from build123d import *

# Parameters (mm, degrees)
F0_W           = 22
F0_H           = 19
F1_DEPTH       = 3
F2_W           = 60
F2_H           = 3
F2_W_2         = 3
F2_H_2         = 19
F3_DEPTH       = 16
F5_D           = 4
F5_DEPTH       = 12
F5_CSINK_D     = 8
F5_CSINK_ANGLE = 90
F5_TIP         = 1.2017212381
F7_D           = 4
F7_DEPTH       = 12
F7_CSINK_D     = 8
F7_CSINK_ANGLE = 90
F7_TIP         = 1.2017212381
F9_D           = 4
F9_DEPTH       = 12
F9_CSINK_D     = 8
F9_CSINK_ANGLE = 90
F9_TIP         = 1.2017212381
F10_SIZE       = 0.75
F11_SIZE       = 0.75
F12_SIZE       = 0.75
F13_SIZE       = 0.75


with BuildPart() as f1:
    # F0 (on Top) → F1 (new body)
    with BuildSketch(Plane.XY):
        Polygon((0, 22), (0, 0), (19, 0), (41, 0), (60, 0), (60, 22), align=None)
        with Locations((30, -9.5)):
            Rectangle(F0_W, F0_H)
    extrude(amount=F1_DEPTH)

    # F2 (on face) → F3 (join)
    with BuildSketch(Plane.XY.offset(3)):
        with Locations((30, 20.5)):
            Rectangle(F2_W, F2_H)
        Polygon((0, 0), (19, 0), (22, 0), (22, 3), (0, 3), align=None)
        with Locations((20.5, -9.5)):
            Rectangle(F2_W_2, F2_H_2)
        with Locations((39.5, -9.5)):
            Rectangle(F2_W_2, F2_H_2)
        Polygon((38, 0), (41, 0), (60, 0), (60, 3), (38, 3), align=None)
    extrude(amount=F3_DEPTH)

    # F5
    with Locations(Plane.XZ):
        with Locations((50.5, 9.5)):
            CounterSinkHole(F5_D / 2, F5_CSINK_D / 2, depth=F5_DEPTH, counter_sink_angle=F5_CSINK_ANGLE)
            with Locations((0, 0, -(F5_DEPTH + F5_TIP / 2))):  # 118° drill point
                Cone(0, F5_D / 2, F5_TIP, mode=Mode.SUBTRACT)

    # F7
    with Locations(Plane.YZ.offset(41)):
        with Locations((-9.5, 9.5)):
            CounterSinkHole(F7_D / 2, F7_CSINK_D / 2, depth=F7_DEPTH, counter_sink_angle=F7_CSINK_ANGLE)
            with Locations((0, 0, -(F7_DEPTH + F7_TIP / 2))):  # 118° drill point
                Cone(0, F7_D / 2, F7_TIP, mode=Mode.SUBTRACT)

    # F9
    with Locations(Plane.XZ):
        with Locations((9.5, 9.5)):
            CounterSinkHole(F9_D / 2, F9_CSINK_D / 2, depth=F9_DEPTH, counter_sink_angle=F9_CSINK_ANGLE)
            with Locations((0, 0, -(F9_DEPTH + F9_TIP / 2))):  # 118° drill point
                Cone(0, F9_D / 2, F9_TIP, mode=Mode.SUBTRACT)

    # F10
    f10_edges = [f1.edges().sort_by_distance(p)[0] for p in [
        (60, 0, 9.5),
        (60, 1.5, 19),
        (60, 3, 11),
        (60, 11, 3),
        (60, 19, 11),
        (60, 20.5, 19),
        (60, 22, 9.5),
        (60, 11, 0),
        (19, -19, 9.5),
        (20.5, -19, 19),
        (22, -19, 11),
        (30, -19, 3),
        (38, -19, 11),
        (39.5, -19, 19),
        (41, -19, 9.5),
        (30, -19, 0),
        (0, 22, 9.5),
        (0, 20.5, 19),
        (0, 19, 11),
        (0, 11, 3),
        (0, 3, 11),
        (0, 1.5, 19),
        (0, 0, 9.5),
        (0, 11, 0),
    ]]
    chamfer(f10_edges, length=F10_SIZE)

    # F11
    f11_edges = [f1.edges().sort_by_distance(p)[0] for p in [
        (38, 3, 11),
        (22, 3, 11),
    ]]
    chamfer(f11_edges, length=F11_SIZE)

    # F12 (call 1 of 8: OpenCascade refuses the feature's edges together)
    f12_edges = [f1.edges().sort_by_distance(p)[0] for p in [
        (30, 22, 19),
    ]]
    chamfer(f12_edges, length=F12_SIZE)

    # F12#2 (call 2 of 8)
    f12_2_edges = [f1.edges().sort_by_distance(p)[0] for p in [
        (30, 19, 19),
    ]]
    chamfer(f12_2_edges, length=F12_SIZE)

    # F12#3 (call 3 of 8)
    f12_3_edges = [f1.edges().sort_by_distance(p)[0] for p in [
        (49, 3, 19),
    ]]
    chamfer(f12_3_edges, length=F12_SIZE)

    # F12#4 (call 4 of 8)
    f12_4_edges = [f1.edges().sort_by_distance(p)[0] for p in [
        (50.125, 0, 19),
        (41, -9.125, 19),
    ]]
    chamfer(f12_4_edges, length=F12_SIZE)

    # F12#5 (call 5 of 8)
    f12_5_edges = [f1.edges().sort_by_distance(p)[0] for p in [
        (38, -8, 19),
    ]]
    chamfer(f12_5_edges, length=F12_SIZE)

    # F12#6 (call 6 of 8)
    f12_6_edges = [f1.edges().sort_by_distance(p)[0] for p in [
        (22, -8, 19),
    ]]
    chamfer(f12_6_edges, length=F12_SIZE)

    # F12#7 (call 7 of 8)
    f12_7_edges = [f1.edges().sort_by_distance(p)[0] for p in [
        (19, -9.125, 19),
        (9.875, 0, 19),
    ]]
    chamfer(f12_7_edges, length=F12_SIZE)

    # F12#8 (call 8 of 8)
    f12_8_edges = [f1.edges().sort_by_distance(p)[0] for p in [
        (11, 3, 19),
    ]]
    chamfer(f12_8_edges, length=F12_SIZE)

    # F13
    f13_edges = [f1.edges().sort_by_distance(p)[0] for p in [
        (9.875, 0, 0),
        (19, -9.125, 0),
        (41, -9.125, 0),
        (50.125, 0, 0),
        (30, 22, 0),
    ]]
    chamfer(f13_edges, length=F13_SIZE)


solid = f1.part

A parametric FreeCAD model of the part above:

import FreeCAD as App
import Part
import Sketcher

V = App.Vector
Q = App.Units.Quantity


def edges_at(feature, points):
    """Names of the edges that pass closest to the given points."""
    edges = feature.Shape.Edges
    near = lambda p: min(range(len(edges)), key=lambda i: edges[i].distToShape(Part.Vertex(*p))[0])
    return sorted({f"Edge{near(p) + 1}" for p in points})

doc = App.newDocument("Part")
body = doc.addObject("PartDesign::Body", "Body")

# Sketch on XY plane
sketch1 = doc.addObject("Sketcher::SketchObject", "Sketch")
body.addObject(sketch1)
sketch1.AttachmentSupport = (doc.XY_Plane, [""])
sketch1.MapMode = "FlatFace"
sketch1.addGeometry([
    Part.LineSegment(V(0, 22, 0), V(0, 0, 0)),  # 0
    Part.LineSegment(V(0, 0, 0), V(19, 0, 0)),  # 1
    Part.LineSegment(V(19, 0, 0), V(19, -19, 0)),  # 2
    Part.LineSegment(V(19, -19, 0), V(41, -19, 0)),  # 3
    Part.LineSegment(V(41, -19, 0), V(41, 0, 0)),  # 4
    Part.LineSegment(V(41, 0, 0), V(60, 0, 0)),  # 5
    Part.LineSegment(V(60, 0, 0), V(60, 22, 0)),  # 6
    Part.LineSegment(V(60, 22, 0), V(0, 22, 0)),  # 7
], False)
sketch1.addConstraint([
    Sketcher.Constraint("Coincident", 0, 2, 1, 1),
    Sketcher.Constraint("Coincident", 1, 2, 2, 1),
    Sketcher.Constraint("Coincident", 2, 2, 3, 1),
    Sketcher.Constraint("Coincident", 3, 2, 4, 1),
    Sketcher.Constraint("Coincident", 4, 2, 5, 1),
    Sketcher.Constraint("Coincident", 5, 2, 6, 1),
    Sketcher.Constraint("Coincident", 6, 2, 7, 1),
    Sketcher.Constraint("Coincident", 7, 2, 0, 1),
    Sketcher.Constraint("Vertical", 0),
    Sketcher.Constraint("Horizontal", 1),
    Sketcher.Constraint("Vertical", 2),
    Sketcher.Constraint("Horizontal", 3),
    Sketcher.Constraint("Vertical", 4),
    Sketcher.Constraint("Horizontal", 5),
    Sketcher.Constraint("Vertical", 6),
    Sketcher.Constraint("Horizontal", 7),
    Sketcher.Constraint("Coincident", 0, 2, -1, 1),
    Sketcher.Constraint("PointOnObject", 4, 2, -1),
    Sketcher.Constraint("Equal", 1, 5),
    Sketcher.Constraint("Equal", 3, 0),
    Sketcher.Constraint("Equal", 5, 2),
    Sketcher.Constraint("DistanceX", 1, 1, 1, 2, Q("19 mm")),
    Sketcher.Constraint("DistanceX", 3, 1, 3, 2, Q("22 mm")),
])
pad1 = doc.addObject("PartDesign::Pad", "Pad")
body.addObject(pad1)
pad1.Profile = sketch1
pad1.Length = 3

# Sketch on XY plane
sketch2 = doc.addObject("Sketcher::SketchObject", "Sketch001")
body.addObject(sketch2)
sketch2.AttachmentSupport = (doc.XY_Plane, [""])
sketch2.MapMode = "FlatFace"
sketch2.AttachmentOffset = App.Placement(V(0, 0, 3), App.Rotation())
sketch2.addGeometry([
    Part.LineSegment(V(0, 22, 0), V(0, 19, 0)),  # 0
    Part.LineSegment(V(0, 19, 0), V(60, 19, 0)),  # 1
    Part.LineSegment(V(60, 19, 0), V(60, 22, 0)),  # 2
    Part.LineSegment(V(60, 22, 0), V(0, 22, 0)),  # 3
    Part.LineSegment(V(0, 0, 0), V(19, 0, 0)),  # 4
    Part.LineSegment(V(19, 0, 0), V(19, -19, 0)),  # 5
    Part.LineSegment(V(19, -19, 0), V(22, -19, 0)),  # 6
    Part.LineSegment(V(22, -19, 0), V(22, 3, 0)),  # 7
    Part.LineSegment(V(22, 3, 0), V(0, 3, 0)),  # 8
    Part.LineSegment(V(0, 3, 0), V(0, 0, 0)),  # 9
    Part.LineSegment(V(38, -19, 0), V(41, -19, 0)),  # 10
    Part.LineSegment(V(41, -19, 0), V(41, 0, 0)),  # 11
    Part.LineSegment(V(41, 0, 0), V(60, 0, 0)),  # 12
    Part.LineSegment(V(60, 0, 0), V(60, 3, 0)),  # 13
    Part.LineSegment(V(60, 3, 0), V(38, 3, 0)),  # 14
    Part.LineSegment(V(38, 3, 0), V(38, -19, 0)),  # 15
], False)
sketch2.addConstraint([
    Sketcher.Constraint("Coincident", 0, 2, 1, 1),
    Sketcher.Constraint("Coincident", 1, 2, 2, 1),
    Sketcher.Constraint("Coincident", 2, 2, 3, 1),
    Sketcher.Constraint("Coincident", 3, 2, 0, 1),
    Sketcher.Constraint("Coincident", 4, 2, 5, 1),
    Sketcher.Constraint("Coincident", 5, 2, 6, 1),
    Sketcher.Constraint("Coincident", 6, 2, 7, 1),
    Sketcher.Constraint("Coincident", 7, 2, 8, 1),
    Sketcher.Constraint("Coincident", 8, 2, 9, 1),
    Sketcher.Constraint("Coincident", 9, 2, 4, 1),
    Sketcher.Constraint("Coincident", 10, 2, 11, 1),
    Sketcher.Constraint("Coincident", 11, 2, 12, 1),
    Sketcher.Constraint("Coincident", 12, 2, 13, 1),
    Sketcher.Constraint("Coincident", 13, 2, 14, 1),
    Sketcher.Constraint("Coincident", 14, 2, 15, 1),
    Sketcher.Constraint("Coincident", 15, 2, 10, 1),
    Sketcher.Constraint("Vertical", 0),
    Sketcher.Constraint("Horizontal", 1),
    Sketcher.Constraint("Vertical", 2),
    Sketcher.Constraint("Horizontal", 3),
    Sketcher.Constraint("Horizontal", 4),
    Sketcher.Constraint("Vertical", 5),
    Sketcher.Constraint("Horizontal", 6),
    Sketcher.Constraint("Vertical", 7),
    Sketcher.Constraint("Horizontal", 8),
    Sketcher.Constraint("Vertical", 9),
    Sketcher.Constraint("Horizontal", 10),
    Sketcher.Constraint("Vertical", 11),
    Sketcher.Constraint("Horizontal", 12),
    Sketcher.Constraint("Vertical", 13),
    Sketcher.Constraint("Horizontal", 14),
    Sketcher.Constraint("Vertical", 15),
    Sketcher.Constraint("Coincident", 9, 2, -1, 1),
    Sketcher.Constraint("PointOnObject", 0, 2, -2),
    Sketcher.Constraint("PointOnObject", 11, 2, -1),
    Sketcher.Constraint("Horizontal", 6, 2, 10, 2),
    Sketcher.Constraint("Horizontal", 8, 2, 13, 2),
    Sketcher.Constraint("Vertical", 2, 2, 12, 2),
    Sketcher.Constraint("Equal", 6, 10),
    Sketcher.Constraint("Equal", 4, 12),
    Sketcher.Constraint("Equal", 10, 0),
    Sketcher.Constraint("Equal", 12, 5),
    Sketcher.Constraint("Equal", 14, 7),
    Sketcher.Constraint("DistanceX", 1, 1, 1, 2, Q("60 mm")),
    Sketcher.Constraint("DistanceX", 4, 1, 4, 2, Q("19 mm")),
    Sketcher.Constraint("DistanceX", 6, 1, 6, 2, Q("3 mm")),
    Sketcher.Constraint("DistanceY", -1, 1, 0, 2, Q("19 mm")),
])
pad2 = doc.addObject("PartDesign::Pad", "Pad001")
body.addObject(pad2)
pad2.Profile = sketch2
pad2.Length = 16

# Sketch on XZ plane
sketch3 = doc.addObject("Sketcher::SketchObject", "Sketch002")
body.addObject(sketch3)
sketch3.AttachmentSupport = (doc.XZ_Plane, [""])
sketch3.MapMode = "FlatFace"
sketch3.addGeometry(Part.Circle(V(50.5, 9.5, 0), V(0, 0, 1), 2), False)
sketch3.addConstraint([
    Sketcher.Constraint("Diameter", 0, Q("4 mm")),
    Sketcher.Constraint("DistanceX", -1, 1, 0, 3, Q("50.5 mm")),
    Sketcher.Constraint("DistanceY", -1, 1, 0, 3, Q("9.5 mm")),
])
doc.recompute()
hole = doc.addObject("PartDesign::Hole", "Hole")
body.addObject(hole)
hole.Profile = sketch3
hole.ThreadType = "None"
hole.Diameter = 4
hole.DepthType = "Dimension"
hole.Depth = 12
hole.DrillPoint = "Angled"
hole.DrillPointAngle = 118
hole.HoleCutType = "Countersink"
hole.HoleCutDiameter = 8
hole.HoleCutCountersinkAngle = 90

# Sketch on YZ plane
sketch4 = doc.addObject("Sketcher::SketchObject", "Sketch003")
body.addObject(sketch4)
sketch4.AttachmentSupport = (doc.YZ_Plane, [""])
sketch4.MapMode = "FlatFace"
sketch4.AttachmentOffset = App.Placement(V(0, 0, 41), App.Rotation())
sketch4.addGeometry(Part.Circle(V(-9.5, 9.5, 0), V(0, 0, 1), 2), False)
sketch4.addConstraint([
    Sketcher.Constraint("Diameter", 0, Q("4 mm")),
    Sketcher.Constraint("DistanceX", 0, 3, -1, 1, Q("9.5 mm")),
    Sketcher.Constraint("DistanceY", -1, 1, 0, 3, Q("9.5 mm")),
])
doc.recompute()
hole2 = doc.addObject("PartDesign::Hole", "Hole001")
body.addObject(hole2)
hole2.Profile = sketch4
hole2.ThreadType = "None"
hole2.Diameter = 4
hole2.DepthType = "Dimension"
hole2.Depth = 12
hole2.DrillPoint = "Angled"
hole2.DrillPointAngle = 118
hole2.HoleCutType = "Countersink"
hole2.HoleCutDiameter = 8
hole2.HoleCutCountersinkAngle = 90

# Sketch on XZ plane
sketch5 = doc.addObject("Sketcher::SketchObject", "Sketch004")
body.addObject(sketch5)
sketch5.AttachmentSupport = (doc.XZ_Plane, [""])
sketch5.MapMode = "FlatFace"
sketch5.addGeometry(Part.Circle(V(9.5, 9.5, 0), V(0, 0, 1), 2), False)
sketch5.addConstraint([
    Sketcher.Constraint("Diameter", 0, Q("4 mm")),
    Sketcher.Constraint("DistanceX", -1, 1, 0, 3, Q("9.5 mm")),
    Sketcher.Constraint("DistanceY", -1, 1, 0, 3, Q("9.5 mm")),
])
doc.recompute()
hole3 = doc.addObject("PartDesign::Hole", "Hole002")
body.addObject(hole3)
hole3.Profile = sketch5
hole3.ThreadType = "None"
hole3.Diameter = 4
hole3.DepthType = "Dimension"
hole3.Depth = 12
hole3.DrillPoint = "Angled"
hole3.DrillPointAngle = 118
hole3.HoleCutType = "Countersink"
hole3.HoleCutDiameter = 8
hole3.HoleCutCountersinkAngle = 90
doc.recompute()

chamfer = doc.addObject("PartDesign::Chamfer", "Chamfer")
body.addObject(chamfer)
chamfer.Base = (hole3, edges_at(hole3, [
    (60, 0, 9.5),
    (60, 1.5, 19),
    (60, 3, 11),
    (60, 11, 3),
    (60, 19, 11),
    (60, 20.5, 19),
    (60, 22, 9.5),
    (60, 11, 0),
    (19, -19, 9.5),
    (20.5, -19, 19),
    (22, -19, 11),
    (30, -19, 3),
    (38, -19, 11),
    (39.5, -19, 19),
    (41, -19, 9.5),
    (30, -19, 0),
    (0, 22, 9.5),
    (0, 20.5, 19),
    (0, 19, 11),
    (0, 11, 3),
    (0, 3, 11),
    (0, 1.5, 19),
    (0, 0, 9.5),
    (0, 11, 0),
]))
chamfer.Size = 0.75
doc.recompute()

chamfer2 = doc.addObject("PartDesign::Chamfer", "Chamfer001")
body.addObject(chamfer2)
chamfer2.Base = (chamfer, edges_at(chamfer, [(38, 3, 11), (22, 3, 11)]))
chamfer2.Size = 0.75
doc.recompute()

chamfer3 = doc.addObject("PartDesign::Chamfer", "Chamfer002")
body.addObject(chamfer3)
chamfer3.Base = (chamfer2, edges_at(chamfer2, [(30, 22, 19)]))
chamfer3.Size = 0.75
doc.recompute()

chamfer4 = doc.addObject("PartDesign::Chamfer", "Chamfer003")
body.addObject(chamfer4)
chamfer4.Base = (chamfer3, edges_at(chamfer3, [(30, 19, 19)]))
chamfer4.Size = 0.75
doc.recompute()

chamfer5 = doc.addObject("PartDesign::Chamfer", "Chamfer004")
body.addObject(chamfer5)
chamfer5.Base = (chamfer4, edges_at(chamfer4, [(49, 3, 19)]))
chamfer5.Size = 0.75
doc.recompute()

chamfer6 = doc.addObject("PartDesign::Chamfer", "Chamfer005")
body.addObject(chamfer6)
chamfer6.Base = (chamfer5, edges_at(chamfer5, [(50.125, 0, 19), (41, -9.125, 19)]))
chamfer6.Size = 0.75
doc.recompute()

chamfer7 = doc.addObject("PartDesign::Chamfer", "Chamfer006")
body.addObject(chamfer7)
chamfer7.Base = (chamfer6, edges_at(chamfer6, [(38, -8, 19)]))
chamfer7.Size = 0.75
doc.recompute()

chamfer8 = doc.addObject("PartDesign::Chamfer", "Chamfer007")
body.addObject(chamfer8)
chamfer8.Base = (chamfer7, edges_at(chamfer7, [(22, -8, 19)]))
chamfer8.Size = 0.75
doc.recompute()

chamfer9 = doc.addObject("PartDesign::Chamfer", "Chamfer008")
body.addObject(chamfer9)
chamfer9.Base = (chamfer8, edges_at(chamfer8, [(19, -9.125, 19), (9.875, 0, 19)]))
chamfer9.Size = 0.75
doc.recompute()

chamfer10 = doc.addObject("PartDesign::Chamfer", "Chamfer009")
body.addObject(chamfer10)
chamfer10.Base = (chamfer9, edges_at(chamfer9, [(11, 3, 19)]))
chamfer10.Size = 0.75
doc.recompute()

chamfer11 = doc.addObject("PartDesign::Chamfer", "Chamfer010")
body.addObject(chamfer11)
chamfer11.Base = (chamfer10, edges_at(chamfer10, [
    (9.875, 0, 0),
    (19, -9.125, 0),
    (41, -9.125, 0),
    (50.125, 0, 0),
    (30, 22, 0),
]))
chamfer11.Size = 0.75

doc.recompute()
